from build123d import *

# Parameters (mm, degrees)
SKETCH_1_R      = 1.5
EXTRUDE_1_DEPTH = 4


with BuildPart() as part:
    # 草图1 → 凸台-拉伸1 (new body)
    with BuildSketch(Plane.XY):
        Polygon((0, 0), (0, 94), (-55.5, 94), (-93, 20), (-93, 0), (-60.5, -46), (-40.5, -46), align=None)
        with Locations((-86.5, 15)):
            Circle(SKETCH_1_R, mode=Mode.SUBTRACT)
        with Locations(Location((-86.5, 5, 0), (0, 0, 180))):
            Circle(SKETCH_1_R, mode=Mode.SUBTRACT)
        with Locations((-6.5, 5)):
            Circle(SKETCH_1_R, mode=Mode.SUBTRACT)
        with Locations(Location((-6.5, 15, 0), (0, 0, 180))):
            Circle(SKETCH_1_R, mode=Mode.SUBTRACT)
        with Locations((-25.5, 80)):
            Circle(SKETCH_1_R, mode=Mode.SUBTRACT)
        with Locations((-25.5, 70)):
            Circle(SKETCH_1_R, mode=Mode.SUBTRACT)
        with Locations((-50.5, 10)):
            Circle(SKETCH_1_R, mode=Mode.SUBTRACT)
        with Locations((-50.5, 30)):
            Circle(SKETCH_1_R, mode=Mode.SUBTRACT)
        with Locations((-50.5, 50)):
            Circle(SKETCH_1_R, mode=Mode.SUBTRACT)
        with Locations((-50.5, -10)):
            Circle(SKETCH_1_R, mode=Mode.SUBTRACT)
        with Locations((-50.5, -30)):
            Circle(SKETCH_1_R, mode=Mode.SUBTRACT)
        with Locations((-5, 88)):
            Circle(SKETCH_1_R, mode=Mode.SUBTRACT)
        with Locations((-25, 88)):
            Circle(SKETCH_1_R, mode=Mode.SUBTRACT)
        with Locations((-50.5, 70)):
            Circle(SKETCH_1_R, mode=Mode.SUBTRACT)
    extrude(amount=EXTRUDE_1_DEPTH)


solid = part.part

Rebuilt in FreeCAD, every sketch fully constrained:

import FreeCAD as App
import Part
import Sketcher

V = App.Vector

doc = App.newDocument("Part")
body = doc.addObject("PartDesign::Body", "Body")

sketch1 = body.newObject("Sketcher::SketchObject", "Sketch")
sketch1.AttachmentSupport = (doc.getObject("XY_Plane"), [""])
sketch1.MapMode = "FlatFace"
sketch1.addGeometry([
    Part.LineSegment(V(0, 0, 0), V(0, 94, 0)),
    Part.LineSegment(V(0, 94, 0), V(-55.5, 94, 0)),
    Part.LineSegment(V(-55.5, 94, 0), V(-93, 20, 0)),
    Part.LineSegment(V(-93, 20, 0), V(-93, 0, 0)),
    Part.LineSegment(V(-93, 0, 0), V(-60.5, -46, 0)),
    Part.LineSegment(V(-60.5, -46, 0), V(-40.5, -46, 0)),
    Part.LineSegment(V(-40.5, -46, 0), V(0, 0, 0)),
    Part.Circle(V(-50.5, -30, 0), V(0, 0, 1), 1.5),
    Part.Circle(V(-50.5, -10, 0), V(0, 0, 1), 1.5),
    Part.Circle(V(-86.5, 5, 0), V(0, 0, 1), 1.5),
    Part.Circle(V(-86.5, 15, 0), V(0, 0, 1), 1.5),
    Part.Circle(V(-50.5, 10, 0), V(0, 0, 1), 1.5),
    Part.Circle(V(-6.5, 5, 0), V(0, 0, 1), 1.5),
    Part.Circle(V(-6.5, 15, 0), V(0, 0, 1), 1.5),
    Part.Circle(V(-50.5, 30, 0), V(0, 0, 1), 1.5),
    Part.Circle(V(-50.5, 50, 0), V(0, 0, 1), 1.5),
    Part.Circle(V(-50.5, 70, 0), V(0, 0, 1), 1.5),
    Part.Circle(V(-25.5, 70, 0), V(0, 0, 1), 1.5),
    Part.Circle(V(-25.5, 80, 0), V(0, 0, 1), 1.5),
    Part.Circle(V(-25, 88, 0), V(0, 0, 1), 1.5),
    Part.Circle(V(-5, 88, 0), V(0, 0, 1), 1.5),
], False)
sketch1.addConstraint([
    Sketcher.Constraint("Coincident", 0, 2, 1, 1),
    Sketcher.Constraint("Coincident", 1, 2, 2, 1),
    Sketcher.Constraint("Coincident", 2, 2, 3, 1),
    Sketcher.Constraint("Coincident", 3, 2, 4, 1),
    Sketcher.Constraint("Coincident", 4, 2, 5, 1),
    Sketcher.Constraint("Coincident", 5, 2, 6, 1),
    Sketcher.Constraint("Coincident", 6, 2, 0, 1),
    Sketcher.Constraint("Vertical", 0),
    Sketcher.Constraint("Horizontal", 1),
    Sketcher.Constraint("Vertical", 3),
    Sketcher.Constraint("Horizontal", 5),
    Sketcher.Constraint("Coincident", 6, 2, -1, 1),
    Sketcher.Constraint("Equal", 7, 8),
    Sketcher.Constraint("Equal", 8, 9),
    Sketcher.Constraint("Equal", 9, 10),
    Sketcher.Constraint("Equal", 10, 11),
    Sketcher.Constraint("Equal", 11, 12),
    Sketcher.Constraint("Equal", 12, 13),
    Sketcher.Constraint("Equal", 13, 14),
    Sketcher.Constraint("Equal", 14, 15),
    Sketcher.Constraint("Equal", 15, 16),
    Sketcher.Constraint("Equal", 16, 17),
    Sketcher.Constraint("Equal", 17, 18),
    Sketcher.Constraint("Equal", 18, 19),
    Sketcher.Constraint("Equal", 19, 20),
    Sketcher.Constraint("Symmetric", 8, 3, 11, 3, -1),
    Sketcher.Constraint("Symmetric", 7, 3, 14, 3, -1),
    Sketcher.Constraint("PointOnObject", 3, 2, -1),
    Sketcher.Constraint("Horizontal", 9, 3, 12, 3),
    Sketcher.Constraint("Horizontal", 10, 3, 13, 3),
    Sketcher.Constraint("Horizontal", 16, 3, 17, 3),
    Sketcher.Constraint("Horizontal", 19, 3, 20, 3),
    Sketcher.Constraint("Vertical", 7, 3, 8, 3),
    Sketcher.Constraint("Vertical", 9, 3, 10, 3),
    Sketcher.Constraint("Vertical", 12, 3, 13, 3),
    Sketcher.Constraint("Vertical", 14, 3, 15, 3),
    Sketcher.Constraint("Vertical", 15, 3, 16, 3),
    Sketcher.Constraint("Vertical", 17, 3, 18, 3),
    Sketcher.Constraint("Equal", 5, 3),
    Sketcher.Constraint("Diameter", 7, 3.0),
    Sketcher.Constraint("DistanceX", 5, 1, 5, 2, 20.0),
    Sketcher.Constraint("DistanceY", 0, 1, 0, 2, 94.0),
    Sketcher.Constraint("DistanceX", 1, 2, 1, 1, 55.5),
    Sketcher.Constraint("DistanceY", 7, 3, -1, 1, 30.0),
    Sketcher.Constraint("DistanceY", 8, 3, -1, 1, 10.0),
    Sketcher.Constraint("DistanceY", -1, 1, 9, 3, 5.0),
    Sketcher.Constraint("DistanceY", -1, 1, 10, 3, 15.0),
    Sketcher.Constraint("DistanceY", -1, 1, 15, 3, 50.0),
    Sketcher.Constraint("DistanceY", -1, 1, 16, 3, 70.0),
    Sketcher.Constraint("DistanceY", -1, 1, 18, 3, 80.0),
    Sketcher.Constraint("DistanceX", 19, 3, -1, 1, 25.0),
    Sketcher.Constraint("DistanceY", -1, 1, 19, 3, 88.0),
    Sketcher.Constraint("DistanceX", 20, 3, -1, 1, 5.0),
    Sketcher.Constraint("DistanceX", 2, 2, -1, 1, 93.0),
    Sketcher.Constraint("DistanceY", 4, 2, -1, 1, 46.0),
    Sketcher.Constraint("DistanceX", 9, 3, 8, 3, 36.0),
    Sketcher.Constraint("DistanceX", 11, 3, 12, 3, 44.0),
    Sketcher.Constraint("DistanceX", 16, 3, 17, 3, 25.0),
    Sketcher.Constraint("DistanceX", 1, 2, 16, 3, 5.0),
    Sketcher.Constraint("DistanceX", 4, 2, 7, 3, 10.0),
])
pad1 = body.newObject("PartDesign::Pad", "Pad")
pad1.Profile = sketch1
pad1.Length = 4

doc.recompute()
